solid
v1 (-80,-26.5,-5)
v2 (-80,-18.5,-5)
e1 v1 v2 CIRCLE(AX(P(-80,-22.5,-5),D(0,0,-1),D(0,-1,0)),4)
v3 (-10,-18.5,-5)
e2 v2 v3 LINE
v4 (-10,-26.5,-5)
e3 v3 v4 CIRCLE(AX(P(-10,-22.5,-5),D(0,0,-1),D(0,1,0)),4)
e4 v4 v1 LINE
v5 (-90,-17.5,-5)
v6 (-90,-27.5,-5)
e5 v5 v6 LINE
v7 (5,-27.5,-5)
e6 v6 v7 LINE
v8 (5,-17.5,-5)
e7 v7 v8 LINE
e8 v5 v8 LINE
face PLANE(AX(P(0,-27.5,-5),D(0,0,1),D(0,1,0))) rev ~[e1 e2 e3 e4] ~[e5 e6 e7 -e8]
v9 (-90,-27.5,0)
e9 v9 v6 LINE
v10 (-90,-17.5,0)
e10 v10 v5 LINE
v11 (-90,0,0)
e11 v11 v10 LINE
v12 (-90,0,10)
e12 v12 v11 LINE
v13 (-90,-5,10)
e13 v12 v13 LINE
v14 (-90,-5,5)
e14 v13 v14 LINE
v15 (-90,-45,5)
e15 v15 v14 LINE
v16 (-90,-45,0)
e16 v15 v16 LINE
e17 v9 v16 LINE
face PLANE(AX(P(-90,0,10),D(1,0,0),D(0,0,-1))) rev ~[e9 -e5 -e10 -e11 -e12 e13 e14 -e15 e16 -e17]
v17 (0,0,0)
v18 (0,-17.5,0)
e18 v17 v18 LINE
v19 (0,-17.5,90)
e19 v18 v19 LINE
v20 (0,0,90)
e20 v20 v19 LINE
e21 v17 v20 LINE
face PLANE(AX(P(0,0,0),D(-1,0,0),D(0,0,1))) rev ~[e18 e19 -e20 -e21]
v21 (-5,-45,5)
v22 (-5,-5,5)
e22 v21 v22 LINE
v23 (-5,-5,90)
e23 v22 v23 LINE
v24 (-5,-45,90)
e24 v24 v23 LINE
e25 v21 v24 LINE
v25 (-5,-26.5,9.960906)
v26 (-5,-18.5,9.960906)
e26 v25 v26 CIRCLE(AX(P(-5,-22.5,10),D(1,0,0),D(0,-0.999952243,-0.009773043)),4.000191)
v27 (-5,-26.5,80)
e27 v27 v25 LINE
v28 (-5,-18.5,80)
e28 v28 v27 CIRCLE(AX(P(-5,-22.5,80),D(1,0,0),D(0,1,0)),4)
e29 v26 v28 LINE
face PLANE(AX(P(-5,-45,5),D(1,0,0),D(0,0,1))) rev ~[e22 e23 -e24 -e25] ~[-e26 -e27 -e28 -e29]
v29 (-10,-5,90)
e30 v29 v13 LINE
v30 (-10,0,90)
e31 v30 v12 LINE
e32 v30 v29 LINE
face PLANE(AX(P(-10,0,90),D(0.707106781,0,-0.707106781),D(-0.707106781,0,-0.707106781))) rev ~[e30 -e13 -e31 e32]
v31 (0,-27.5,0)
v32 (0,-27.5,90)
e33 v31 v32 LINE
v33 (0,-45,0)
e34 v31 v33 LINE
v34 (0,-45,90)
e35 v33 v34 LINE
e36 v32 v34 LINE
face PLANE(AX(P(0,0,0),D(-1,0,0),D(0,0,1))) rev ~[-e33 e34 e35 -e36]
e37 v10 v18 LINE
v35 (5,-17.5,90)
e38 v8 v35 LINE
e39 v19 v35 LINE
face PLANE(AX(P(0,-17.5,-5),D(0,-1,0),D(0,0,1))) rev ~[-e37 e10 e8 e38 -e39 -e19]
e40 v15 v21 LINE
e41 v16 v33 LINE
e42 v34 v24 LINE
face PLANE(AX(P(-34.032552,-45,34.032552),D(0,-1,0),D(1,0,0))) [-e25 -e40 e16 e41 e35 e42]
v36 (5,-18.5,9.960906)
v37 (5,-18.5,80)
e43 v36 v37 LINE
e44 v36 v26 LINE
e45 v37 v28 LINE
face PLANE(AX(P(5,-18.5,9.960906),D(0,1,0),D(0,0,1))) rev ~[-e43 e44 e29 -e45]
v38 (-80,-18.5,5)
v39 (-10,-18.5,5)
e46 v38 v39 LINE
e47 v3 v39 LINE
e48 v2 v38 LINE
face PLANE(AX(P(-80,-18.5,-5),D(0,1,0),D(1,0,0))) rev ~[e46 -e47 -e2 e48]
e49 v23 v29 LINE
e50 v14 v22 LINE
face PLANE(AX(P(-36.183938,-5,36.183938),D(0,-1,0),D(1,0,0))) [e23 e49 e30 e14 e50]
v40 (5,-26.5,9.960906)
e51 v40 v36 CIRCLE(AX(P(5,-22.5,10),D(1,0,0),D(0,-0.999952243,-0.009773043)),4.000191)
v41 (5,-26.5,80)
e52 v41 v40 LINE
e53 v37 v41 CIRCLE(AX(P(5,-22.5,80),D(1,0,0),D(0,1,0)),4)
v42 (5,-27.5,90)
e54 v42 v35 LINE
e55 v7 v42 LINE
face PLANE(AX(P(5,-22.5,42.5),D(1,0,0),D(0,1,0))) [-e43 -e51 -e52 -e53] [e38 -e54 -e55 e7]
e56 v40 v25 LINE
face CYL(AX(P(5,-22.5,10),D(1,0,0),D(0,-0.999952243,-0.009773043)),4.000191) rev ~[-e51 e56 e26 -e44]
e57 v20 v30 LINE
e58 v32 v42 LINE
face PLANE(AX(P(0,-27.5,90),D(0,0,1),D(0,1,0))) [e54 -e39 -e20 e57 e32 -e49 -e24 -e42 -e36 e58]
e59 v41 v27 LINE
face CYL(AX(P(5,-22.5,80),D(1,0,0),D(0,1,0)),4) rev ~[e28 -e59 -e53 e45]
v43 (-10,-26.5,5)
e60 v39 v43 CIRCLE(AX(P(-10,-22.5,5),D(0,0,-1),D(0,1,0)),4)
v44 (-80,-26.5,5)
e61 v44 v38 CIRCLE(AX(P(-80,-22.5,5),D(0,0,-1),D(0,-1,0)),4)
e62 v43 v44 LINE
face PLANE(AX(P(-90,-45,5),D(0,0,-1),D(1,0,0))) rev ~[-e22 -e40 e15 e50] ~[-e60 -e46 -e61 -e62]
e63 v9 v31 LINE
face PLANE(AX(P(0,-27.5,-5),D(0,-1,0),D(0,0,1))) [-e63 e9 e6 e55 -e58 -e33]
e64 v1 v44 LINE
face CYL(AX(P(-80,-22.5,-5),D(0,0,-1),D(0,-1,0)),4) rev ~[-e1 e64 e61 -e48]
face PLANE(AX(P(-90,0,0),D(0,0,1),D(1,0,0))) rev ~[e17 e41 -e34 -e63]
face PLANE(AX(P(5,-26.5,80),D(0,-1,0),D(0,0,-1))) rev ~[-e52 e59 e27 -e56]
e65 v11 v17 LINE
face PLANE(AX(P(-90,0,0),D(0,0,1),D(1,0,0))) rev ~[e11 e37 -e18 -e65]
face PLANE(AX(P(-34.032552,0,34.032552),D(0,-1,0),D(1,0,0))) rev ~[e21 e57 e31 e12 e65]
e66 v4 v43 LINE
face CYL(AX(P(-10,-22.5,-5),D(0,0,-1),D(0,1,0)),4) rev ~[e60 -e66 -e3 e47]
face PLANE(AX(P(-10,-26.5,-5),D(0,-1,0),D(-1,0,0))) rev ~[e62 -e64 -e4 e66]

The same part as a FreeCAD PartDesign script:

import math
import FreeCAD as App
import Part
import Sketcher
Q = App.Units.Quantity

doc = App.newDocument("Part")
body = doc.addObject("PartDesign::Body", "Body")

# Sketch on XZ plane
sketch1 = body.newObject("Sketcher::SketchObject", "Sketch")
sketch1.AttachmentSupport = (doc.getObject("XZ_Plane"), [""])
sketch1.MapMode = "FlatFace"
sketch1.addGeometry([
    Part.LineSegment(App.Vector(-90, 10, 0), App.Vector(-90, 0, 0)),  # 0
    Part.LineSegment(App.Vector(-90, 0, 0), App.Vector(0, 0, 0)),  # 1
    Part.LineSegment(App.Vector(0, 0, 0), App.Vector(0, 90, 0)),  # 2
    Part.LineSegment(App.Vector(0, 90, 0), App.Vector(-10, 90, 0)),  # 3
    Part.LineSegment(App.Vector(-10, 90, 0), App.Vector(-90, 10, 0)),  # 4
], False)
sketch1.addConstraint([
    Sketcher.Constraint("Coincident", 0, 2, 1, 1),
    Sketcher.Constraint("Coincident", 1, 2, 2, 1),
    Sketcher.Constraint("Coincident", 2, 2, 3, 1),
    Sketcher.Constraint("Coincident", 3, 2, 4, 1),
    Sketcher.Constraint("Coincident", 4, 2, 0, 1),
    Sketcher.Constraint("Vertical", 0),
    Sketcher.Constraint("Horizontal", 1),
    Sketcher.Constraint("Vertical", 2),
    Sketcher.Constraint("Horizontal", 3),
    Sketcher.Constraint("Coincident", 1, 2, -1, 1),
    Sketcher.Constraint("Equal", 3, 0),
    Sketcher.Constraint("Equal", 1, 2),
    Sketcher.Constraint("DistanceX", 1, 1, 1, 2, Q("90 mm")),
    Sketcher.Constraint("DistanceX", 3, 2, 3, 1, Q("10 mm")),
])
pad1 = body.newObject("PartDesign::Pad", "Pad")
pad1.Profile = sketch1
pad1.Length = 45

# Sketch on XZ plane
sketch2 = body.newObject("Sketcher::SketchObject", "Sketch001")
sketch2.AttachmentSupport = (doc.getObject("XZ_Plane"), [""])
sketch2.MapMode = "FlatFace"
sketch2.AttachmentOffset = App.Placement(App.Vector(0, 0, 45), App.Rotation())
sketch2.addGeometry([
    Part.LineSegment(App.Vector(-10, 90, 0), App.Vector(-90, 10, 0)),  # 0
    Part.LineSegment(App.Vector(-90, 10, 0), App.Vector(-90, 5, 0)),  # 1
    Part.LineSegment(App.Vector(-90, 5, 0), App.Vector(-5, 5, 0)),  # 2
    Part.LineSegment(App.Vector(-5, 5, 0), App.Vector(-5, 90, 0)),  # 3
    Part.LineSegment(App.Vector(-5, 90, 0), App.Vector(-10, 90, 0)),  # 4
], False)
sketch2.addConstraint([
    Sketcher.Constraint("Coincident", 0, 2, 1, 1),
    Sketcher.Constraint("Coincident", 1, 2, 2, 1),
    Sketcher.Constraint("Coincident", 2, 2, 3, 1),
    Sketcher.Constraint("Coincident", 3, 2, 4, 1),
    Sketcher.Constraint("Coincident", 4, 2, 0, 1),
    Sketcher.Constraint("Vertical", 1),
    Sketcher.Constraint("Horizontal", 2),
    Sketcher.Constraint("Vertical", 3),
    Sketcher.Constraint("Horizontal", 4),
    Sketcher.Constraint("Equal", 4, 1),
    Sketcher.Constraint("Equal", 2, 3),
    Sketcher.Constraint("DistanceX", 2, 1, 2, 2, Q("85 mm")),
    Sketcher.Constraint("DistanceX", 4, 2, 4, 1, Q("5 mm")),
    Sketcher.Constraint("DistanceX", 0, 2, -1, 1, Q("90 mm")),
    Sketcher.Constraint("DistanceY", -1, 1, 0, 2, Q("10 mm")),
])
pocket1 = body.newObject("PartDesign::Pocket", "Pocket")
pocket1.Profile = sketch2
pocket1.Length = 40

# Sketch on XY plane
sketch3 = body.newObject("Sketcher::SketchObject", "Sketch002")
sketch3.AttachmentSupport = (doc.getObject("XY_Plane"), [""])
sketch3.MapMode = "FlatFace"
sketch3.addGeometry([
    Part.LineSegment(App.Vector(-90, -28, 0), App.Vector(-90, -18, 0)),
    Part.LineSegment(App.Vector(-90, -18, 0), App.Vector(0, -18, 0)),
    Part.LineSegment(App.Vector(0, -18, 0), App.Vector(0, -28, 0)),
    Part.LineSegment(App.Vector(0, -28, 0), App.Vector(-90, -28, 0)),
], False)
sketch3.addConstraint([
    Sketcher.Constraint("Coincident", 0, 2, 1, 1),
    Sketcher.Constraint("Coincident", 1, 2, 2, 1),
    Sketcher.Constraint("Coincident", 2, 2, 3, 1),
    Sketcher.Constraint("Coincident", 3, 2, 0, 1),
    Sketcher.Constraint("Vertical", 0),
    Sketcher.Constraint("Horizontal", 1),
    Sketcher.Constraint("Vertical", 2),
    Sketcher.Constraint("Horizontal", 3),
    Sketcher.Constraint("PointOnObject", 1, 2, -2),
    Sketcher.Constraint("DistanceX", 1, 1, 1, 2, Q("90 mm")),
    Sketcher.Constraint("DistanceY", 0, 1, 0, 2, Q("10 mm")),
    Sketcher.Constraint("DistanceY", 0, 2, -1, 1, Q("17.5 mm")),
])
pad2 = body.newObject("PartDesign::Pad", "Pad001")
pad2.Profile = sketch3
pad2.Length = 5
pad2.Reversed = True

# Sketch on YZ plane
sketch4 = body.newObject("Sketcher::SketchObject", "Sketch003")
sketch4.AttachmentSupport = (doc.getObject("YZ_Plane"), [""])
sketch4.MapMode = "FlatFace"
sketch4.addGeometry([
    Part.LineSegment(App.Vector(-28, 90, 0), App.Vector(-28, -5, 0)),
    Part.LineSegment(App.Vector(-28, -5, 0), App.Vector(-18, -5, 0)),
    Part.LineSegment(App.Vector(-18, -5, 0), App.Vector(-18, 90, 0)),
    Part.LineSegment(App.Vector(-18, 90, 0), App.Vector(-28, 90, 0)),
], False)
sketch4.addConstraint([
    Sketcher.Constraint("Coincident", 0, 2, 1, 1),
    Sketcher.Constraint("Coincident", 1, 2, 2, 1),
    Sketcher.Constraint("Coincident", 2, 2, 3, 1),
    Sketcher.Constraint("Coincident", 3, 2, 0, 1),
    Sketcher.Constraint("Vertical", 0),
    Sketcher.Constraint("Horizontal", 1),
    Sketcher.Constraint("Vertical", 2),
    Sketcher.Constraint("Horizontal", 3),
    Sketcher.Constraint("DistanceX", 1, 1, 1, 2, Q("10 mm")),
    Sketcher.Constraint("DistanceY", 0, 2, 0, 1, Q("95 mm")),
    Sketcher.Constraint("DistanceY", 0, 2, -1, 1, Q("5 mm")),
    Sketcher.Constraint("DistanceX", 0, 2, -1, 1, Q("27.5 mm")),
])
pad3 = body.newObject("PartDesign::Pad", "Pad002")
pad3.Profile = sketch4
pad3.Length = 5

# Sketch on YZ plane
sketch5 = body.newObject("Sketcher::SketchObject", "Sketch004")
sketch5.AttachmentSupport = (doc.getObject("YZ_Plane"), [""])
sketch5.MapMode = "FlatFace"
sketch5.AttachmentOffset = App.Placement(App.Vector(0, 0, 5), App.Rotation())
sketch5.addGeometry([
    Part.ArcOfCircle(Part.Circle(App.Vector(-22.5, 80, 0), App.Vector(0, 0, 1), 4), math.radians(0), math.radians(180)),
    Part.LineSegment(App.Vector(-26.5, 80, 0), App.Vector(-26.5, 10, 0)),
    Part.ArcOfCircle(Part.Circle(App.Vector(-22.5, 10, 0), App.Vector(0, 0, 1), 4), math.radians(-179), math.radians(-1)),
    Part.LineSegment(App.Vector(-18.5, 10, 0), App.Vector(-18.5, 80, 0)),
], False)
sketch5.addConstraint([
    Sketcher.Constraint("Tangent", 0, 2, 1, 1),
    Sketcher.Constraint("Coincident", 1, 2, 2, 1),
    Sketcher.Constraint("Coincident", 2, 2, 3, 1),
    Sketcher.Constraint("Tangent", 3, 2, 0, 1),
    Sketcher.Constraint("Vertical", 1),
    Sketcher.Constraint("Vertical", 3),
    Sketcher.Constraint("Horizontal", 1, 2, 2, 2),
    Sketcher.Constraint("Radius", 0, Q("4 mm")),
    Sketcher.Constraint("DistanceY", -1, 1, 0, 3, Q("80 mm")),
    Sketcher.Constraint("DistanceY", -1, 1, 2, 3, Q("10 mm")),
    Sketcher.Constraint("DistanceX", 0, 3, -1, 1, Q("22.5 mm")),
    Sketcher.Constraint("Radius", 2, Q("4.000191 mm")),
])
pocket2 = body.newObject("PartDesign::Pocket", "Pocket001")
pocket2.Profile = sketch5
pocket2.Type = "ThroughAll"

# Sketch on XY plane
sketch6 = body.newObject("Sketcher::SketchObject", "Sketch005")
sketch6.AttachmentSupport = (doc.getObject("XY_Plane"), [""])
sketch6.MapMode = "FlatFace"
sketch6.AttachmentOffset = App.Placement(App.Vector(0, 0, -5), App.Rotation())
sketch6.addGeometry([
    Part.ArcOfCircle(Part.Circle(App.Vector(-80, -22.5, 0), App.Vector(0, 0, 1), 4), math.radians(90), math.radians(270)),
    Part.LineSegment(App.Vector(-80, -18.5, 0), App.Vector(-10, -18.5, 0)),
    Part.ArcOfCircle(Part.Circle(App.Vector(-10, -22.5, 0), App.Vector(0, 0, 1), 4), math.radians(-90), math.radians(90)),
    Part.LineSegment(App.Vector(-10, -26.5, 0), App.Vector(-80, -26.5, 0)),
], False)
sketch6.addConstraint([
    Sketcher.Constraint("Tangent", 0, 1, 1, 1),
    Sketcher.Constraint("Tangent", 1, 2, 2, 2),
    Sketcher.Constraint("Tangent", 2, 1, 3, 1),
    Sketcher.Constraint("Tangent", 3, 2, 0, 2),
    Sketcher.Constraint("Horizontal", 1),
    Sketcher.Constraint("Horizontal", 3),
    Sketcher.Constraint("Radius", 0, Q("4 mm")),
    Sketcher.Constraint("DistanceX", 1, 1, 1, 2, Q("70 mm")),
    Sketcher.Constraint("DistanceX", 0, 3, -1, 1, Q("80 mm")),
    Sketcher.Constraint("DistanceY", 0, 3, -1, 1, Q("22.5 mm")),
])
pocket3 = body.newObject("PartDesign::Pocket", "Pocket002")
pocket3.Profile = sketch6
pocket3.Type = "ThroughAll"
pocket3.Reversed = True

doc.recompute()
